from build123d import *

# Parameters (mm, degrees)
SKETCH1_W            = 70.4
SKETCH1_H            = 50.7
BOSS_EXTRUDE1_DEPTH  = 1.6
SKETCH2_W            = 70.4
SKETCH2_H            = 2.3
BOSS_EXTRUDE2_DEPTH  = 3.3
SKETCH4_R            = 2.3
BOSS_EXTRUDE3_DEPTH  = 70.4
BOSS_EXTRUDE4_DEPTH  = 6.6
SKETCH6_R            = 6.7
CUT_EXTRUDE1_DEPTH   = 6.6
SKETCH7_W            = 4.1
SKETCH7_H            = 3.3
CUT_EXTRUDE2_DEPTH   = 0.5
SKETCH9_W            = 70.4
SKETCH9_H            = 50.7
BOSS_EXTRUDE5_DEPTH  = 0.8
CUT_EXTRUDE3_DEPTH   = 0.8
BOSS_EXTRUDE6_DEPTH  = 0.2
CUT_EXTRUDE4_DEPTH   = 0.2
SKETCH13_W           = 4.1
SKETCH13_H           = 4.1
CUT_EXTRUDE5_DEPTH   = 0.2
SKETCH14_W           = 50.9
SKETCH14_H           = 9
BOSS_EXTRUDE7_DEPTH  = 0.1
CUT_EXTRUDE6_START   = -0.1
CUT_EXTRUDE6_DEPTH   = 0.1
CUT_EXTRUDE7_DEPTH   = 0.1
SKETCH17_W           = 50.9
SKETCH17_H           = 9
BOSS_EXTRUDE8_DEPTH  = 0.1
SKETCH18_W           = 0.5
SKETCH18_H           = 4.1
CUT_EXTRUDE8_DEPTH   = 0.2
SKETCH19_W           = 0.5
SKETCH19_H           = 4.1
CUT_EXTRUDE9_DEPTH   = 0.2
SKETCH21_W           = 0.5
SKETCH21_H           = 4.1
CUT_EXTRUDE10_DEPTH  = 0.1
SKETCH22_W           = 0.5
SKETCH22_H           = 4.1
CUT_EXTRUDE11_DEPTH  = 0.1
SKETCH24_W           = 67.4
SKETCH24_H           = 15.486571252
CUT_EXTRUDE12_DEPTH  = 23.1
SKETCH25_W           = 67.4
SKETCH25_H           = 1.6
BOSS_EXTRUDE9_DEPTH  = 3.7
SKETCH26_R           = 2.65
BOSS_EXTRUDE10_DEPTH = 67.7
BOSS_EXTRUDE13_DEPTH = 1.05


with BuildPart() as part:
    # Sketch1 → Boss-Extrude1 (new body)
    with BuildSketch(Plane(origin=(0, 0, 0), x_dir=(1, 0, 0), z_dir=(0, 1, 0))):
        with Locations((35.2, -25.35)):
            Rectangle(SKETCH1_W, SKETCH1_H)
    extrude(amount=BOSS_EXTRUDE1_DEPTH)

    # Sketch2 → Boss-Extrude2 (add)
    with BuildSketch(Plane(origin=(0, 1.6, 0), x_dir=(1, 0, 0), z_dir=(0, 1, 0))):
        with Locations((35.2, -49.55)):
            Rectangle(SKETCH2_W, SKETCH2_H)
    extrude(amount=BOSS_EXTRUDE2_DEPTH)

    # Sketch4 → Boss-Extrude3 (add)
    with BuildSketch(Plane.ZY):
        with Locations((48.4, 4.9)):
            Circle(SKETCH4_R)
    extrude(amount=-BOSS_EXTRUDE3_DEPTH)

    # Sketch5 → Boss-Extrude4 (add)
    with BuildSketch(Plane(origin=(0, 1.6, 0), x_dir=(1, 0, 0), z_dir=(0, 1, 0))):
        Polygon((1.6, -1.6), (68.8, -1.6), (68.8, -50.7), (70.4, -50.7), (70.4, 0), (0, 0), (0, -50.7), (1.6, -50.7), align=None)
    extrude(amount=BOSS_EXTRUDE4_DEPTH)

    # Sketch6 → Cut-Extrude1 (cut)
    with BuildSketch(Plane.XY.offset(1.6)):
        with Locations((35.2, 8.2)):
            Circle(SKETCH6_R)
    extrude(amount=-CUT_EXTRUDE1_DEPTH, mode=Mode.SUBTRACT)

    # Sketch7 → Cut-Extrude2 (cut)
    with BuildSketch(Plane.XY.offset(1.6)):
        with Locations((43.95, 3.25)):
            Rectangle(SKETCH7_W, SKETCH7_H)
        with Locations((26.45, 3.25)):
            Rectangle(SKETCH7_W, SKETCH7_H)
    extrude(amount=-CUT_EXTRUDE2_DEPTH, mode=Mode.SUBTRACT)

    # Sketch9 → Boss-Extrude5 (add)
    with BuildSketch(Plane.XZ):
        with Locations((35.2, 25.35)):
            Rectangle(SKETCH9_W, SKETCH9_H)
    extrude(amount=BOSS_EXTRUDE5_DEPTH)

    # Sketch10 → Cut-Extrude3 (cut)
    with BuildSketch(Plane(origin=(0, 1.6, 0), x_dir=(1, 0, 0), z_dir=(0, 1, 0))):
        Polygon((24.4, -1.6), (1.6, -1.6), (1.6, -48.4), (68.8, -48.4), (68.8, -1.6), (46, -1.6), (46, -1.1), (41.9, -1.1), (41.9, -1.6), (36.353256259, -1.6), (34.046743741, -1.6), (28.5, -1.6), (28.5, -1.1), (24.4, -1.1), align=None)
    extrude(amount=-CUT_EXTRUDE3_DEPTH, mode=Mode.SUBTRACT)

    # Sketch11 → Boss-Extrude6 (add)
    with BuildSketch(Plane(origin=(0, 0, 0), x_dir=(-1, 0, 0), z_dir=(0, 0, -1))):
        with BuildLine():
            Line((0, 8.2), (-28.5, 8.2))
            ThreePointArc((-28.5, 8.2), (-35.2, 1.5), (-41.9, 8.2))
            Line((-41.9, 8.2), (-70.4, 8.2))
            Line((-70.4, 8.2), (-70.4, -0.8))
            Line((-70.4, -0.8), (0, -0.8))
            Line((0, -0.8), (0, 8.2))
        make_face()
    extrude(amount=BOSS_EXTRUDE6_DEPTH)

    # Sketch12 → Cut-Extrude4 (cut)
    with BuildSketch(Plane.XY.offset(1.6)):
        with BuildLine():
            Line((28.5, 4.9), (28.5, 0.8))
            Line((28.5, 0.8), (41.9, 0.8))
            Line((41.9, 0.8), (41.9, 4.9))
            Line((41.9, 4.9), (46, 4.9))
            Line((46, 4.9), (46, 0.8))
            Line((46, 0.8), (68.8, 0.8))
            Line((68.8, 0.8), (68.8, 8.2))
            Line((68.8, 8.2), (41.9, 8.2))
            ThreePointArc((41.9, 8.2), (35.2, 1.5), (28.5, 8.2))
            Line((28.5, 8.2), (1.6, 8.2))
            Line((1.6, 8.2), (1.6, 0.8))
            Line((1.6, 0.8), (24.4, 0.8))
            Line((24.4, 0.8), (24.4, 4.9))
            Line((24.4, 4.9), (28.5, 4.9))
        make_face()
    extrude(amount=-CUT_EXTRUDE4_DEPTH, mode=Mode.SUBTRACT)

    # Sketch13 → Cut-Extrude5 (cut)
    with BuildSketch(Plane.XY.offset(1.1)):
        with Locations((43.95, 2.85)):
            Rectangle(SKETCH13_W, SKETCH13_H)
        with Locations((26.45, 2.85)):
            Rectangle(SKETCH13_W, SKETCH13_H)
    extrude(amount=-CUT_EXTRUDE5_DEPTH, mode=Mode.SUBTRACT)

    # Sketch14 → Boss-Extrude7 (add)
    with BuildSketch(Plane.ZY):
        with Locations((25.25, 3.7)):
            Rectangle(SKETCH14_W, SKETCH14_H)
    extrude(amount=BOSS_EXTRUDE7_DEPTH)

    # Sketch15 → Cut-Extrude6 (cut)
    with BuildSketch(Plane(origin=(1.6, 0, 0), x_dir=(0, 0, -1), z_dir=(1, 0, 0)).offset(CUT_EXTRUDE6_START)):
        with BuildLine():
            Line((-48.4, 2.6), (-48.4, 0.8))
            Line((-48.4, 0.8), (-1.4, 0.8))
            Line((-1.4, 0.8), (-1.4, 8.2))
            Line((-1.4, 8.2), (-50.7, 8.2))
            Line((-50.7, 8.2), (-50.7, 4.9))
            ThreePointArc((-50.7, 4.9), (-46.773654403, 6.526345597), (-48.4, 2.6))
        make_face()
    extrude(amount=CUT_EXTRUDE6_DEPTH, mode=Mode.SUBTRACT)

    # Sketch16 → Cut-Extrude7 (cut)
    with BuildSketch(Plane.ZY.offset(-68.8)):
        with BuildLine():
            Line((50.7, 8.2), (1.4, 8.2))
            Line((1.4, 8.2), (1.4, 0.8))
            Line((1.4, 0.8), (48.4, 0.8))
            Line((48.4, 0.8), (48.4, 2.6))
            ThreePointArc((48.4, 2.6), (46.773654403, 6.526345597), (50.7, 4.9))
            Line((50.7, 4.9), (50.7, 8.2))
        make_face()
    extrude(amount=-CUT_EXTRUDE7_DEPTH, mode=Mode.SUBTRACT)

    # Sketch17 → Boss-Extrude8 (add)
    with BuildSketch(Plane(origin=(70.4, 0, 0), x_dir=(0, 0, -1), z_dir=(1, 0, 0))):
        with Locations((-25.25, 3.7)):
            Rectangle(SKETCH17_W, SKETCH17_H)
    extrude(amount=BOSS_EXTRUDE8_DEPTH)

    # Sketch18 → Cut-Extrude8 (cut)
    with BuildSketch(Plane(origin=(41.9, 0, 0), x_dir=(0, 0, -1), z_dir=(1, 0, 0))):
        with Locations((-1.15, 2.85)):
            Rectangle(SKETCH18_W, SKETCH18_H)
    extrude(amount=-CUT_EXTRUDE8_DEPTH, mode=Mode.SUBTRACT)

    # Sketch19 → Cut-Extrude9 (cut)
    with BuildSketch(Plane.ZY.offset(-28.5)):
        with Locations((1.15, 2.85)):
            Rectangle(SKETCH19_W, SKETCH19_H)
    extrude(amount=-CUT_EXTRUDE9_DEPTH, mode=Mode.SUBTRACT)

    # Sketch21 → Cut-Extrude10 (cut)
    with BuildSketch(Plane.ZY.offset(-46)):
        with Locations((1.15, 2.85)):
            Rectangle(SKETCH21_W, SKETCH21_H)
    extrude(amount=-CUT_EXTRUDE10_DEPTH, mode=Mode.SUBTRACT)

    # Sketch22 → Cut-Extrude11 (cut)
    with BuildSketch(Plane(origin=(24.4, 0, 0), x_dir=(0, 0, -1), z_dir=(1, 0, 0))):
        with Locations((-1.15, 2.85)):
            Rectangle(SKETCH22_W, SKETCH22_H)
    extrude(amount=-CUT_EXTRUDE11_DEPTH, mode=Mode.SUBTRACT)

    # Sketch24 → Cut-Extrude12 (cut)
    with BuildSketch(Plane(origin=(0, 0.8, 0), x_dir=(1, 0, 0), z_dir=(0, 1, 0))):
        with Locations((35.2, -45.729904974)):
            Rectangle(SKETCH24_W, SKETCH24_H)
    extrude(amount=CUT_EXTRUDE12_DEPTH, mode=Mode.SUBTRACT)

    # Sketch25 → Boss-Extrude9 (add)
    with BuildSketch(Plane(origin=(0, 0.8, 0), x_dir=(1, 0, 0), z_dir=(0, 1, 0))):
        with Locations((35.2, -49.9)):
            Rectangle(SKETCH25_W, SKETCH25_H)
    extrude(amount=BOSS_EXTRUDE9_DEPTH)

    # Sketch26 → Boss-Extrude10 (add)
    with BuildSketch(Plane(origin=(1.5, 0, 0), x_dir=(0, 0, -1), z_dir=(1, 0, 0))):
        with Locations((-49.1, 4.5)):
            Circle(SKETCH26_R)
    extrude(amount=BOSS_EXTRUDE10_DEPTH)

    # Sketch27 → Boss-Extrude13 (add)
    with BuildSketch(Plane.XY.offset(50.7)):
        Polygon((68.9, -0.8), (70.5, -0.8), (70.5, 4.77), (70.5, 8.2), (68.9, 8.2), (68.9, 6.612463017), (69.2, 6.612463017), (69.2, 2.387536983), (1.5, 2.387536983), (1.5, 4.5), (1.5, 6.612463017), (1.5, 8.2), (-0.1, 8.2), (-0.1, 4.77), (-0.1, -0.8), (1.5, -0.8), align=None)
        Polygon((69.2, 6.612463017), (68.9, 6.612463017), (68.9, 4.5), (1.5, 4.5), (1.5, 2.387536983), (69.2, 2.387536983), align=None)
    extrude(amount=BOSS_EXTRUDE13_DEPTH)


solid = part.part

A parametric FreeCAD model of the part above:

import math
import FreeCAD as App
import Part
import Sketcher


def add_polygon(sketch, points):
    """Adds a closed chain of lines whose ends are joined by coincident constraints."""
    first, n = sketch.GeometryCount, len(points)
    for a, b in zip(points, points[1:] + points[:1]):
        sketch.addGeometry(Part.LineSegment(App.Vector(*a, 0), App.Vector(*b, 0)), False)
    for i in range(n):
        sketch.addConstraint(Sketcher.Constraint("Coincident", first + i, 2, first + (i + 1) % n, 1))

doc = App.newDocument("Part")
body = doc.addObject("PartDesign::Body", "Body")

# Sketch on XZ plane
sketch1 = doc.addObject("Sketcher::SketchObject", "Sketch")
body.addObject(sketch1)
sketch1.AttachmentSupport = (doc.XZ_Plane, [""])
sketch1.MapMode = "FlatFace"
add_polygon(sketch1, [(0, 0), (0, 51), (70, 51), (70, 0)])  # lines 0-3
sketch1.addConstraint([
    Sketcher.Constraint("Vertical", 0),
    Sketcher.Constraint("Horizontal", 1),
    Sketcher.Constraint("Vertical", 2),
    Sketcher.Constraint("Horizontal", 3),
    Sketcher.Constraint("Coincident", 3, 2, -1, 1),
    Sketcher.Constraint("DistanceX", 1, 1, 1, 2, 70.4),
    Sketcher.Constraint("DistanceY", 0, 1, 0, 2, 50.7),
])
pad1 = doc.addObject("PartDesign::Pad", "Pad")
body.addObject(pad1)
pad1.Profile = sketch1
pad1.Length = 1.6
pad1.Reversed = True

# Sketch on XZ plane
sketch2 = doc.addObject("Sketcher::SketchObject", "Sketch001")
body.addObject(sketch2)
sketch2.AttachmentSupport = (doc.XZ_Plane, [""])
sketch2.MapMode = "FlatFace"
sketch2.AttachmentOffset = App.Placement(App.Vector(0, 0, -1.6), App.Rotation())
add_polygon(sketch2, [(0, 48.4), (0, 50.7), (70.4, 50.7), (70.4, 48.4)])  # lines 0-3
sketch2.addConstraint([
    Sketcher.Constraint("Vertical", 0),
    Sketcher.Constraint("Horizontal", 1),
    Sketcher.Constraint("Vertical", 2),
    Sketcher.Constraint("Horizontal", 3),
    Sketcher.Constraint("PointOnObject", 0, 2, -2),
    Sketcher.Constraint("DistanceX", 1, 1, 1, 2, 70.4),
    Sketcher.Constraint("DistanceY", 0, 1, 0, 2, 2.3),
    Sketcher.Constraint("DistanceY", -1, 1, 0, 2, 50.7),
])
pad2 = doc.addObject("PartDesign::Pad", "Pad001")
body.addObject(pad2)
pad2.Profile = sketch2
pad2.Length = 3.3
pad2.Reversed = True

# Sketch on YZ plane
sketch3 = doc.addObject("Sketcher::SketchObject", "Sketch002")
body.addObject(sketch3)
sketch3.AttachmentSupport = (doc.YZ_Plane, [""])
sketch3.MapMode = "FlatFace"
sketch3.addGeometry(Part.Circle(App.Vector(4.9, 48.4, 0), App.Vector(0, 0, 1), 2.3), False)
sketch3.addConstraint([
    Sketcher.Constraint("Diameter", 0, 4.6),
    Sketcher.Constraint("DistanceX", -1, 1, 0, 3, 4.9),
    Sketcher.Constraint("DistanceY", -1, 1, 0, 3, 48.4),
])
pad3 = doc.addObject("PartDesign::Pad", "Pad002")
body.addObject(pad3)
pad3.Profile = sketch3
pad3.Length = 70.4

# Sketch on XZ plane
sketch4 = doc.addObject("Sketcher::SketchObject", "Sketch003")
body.addObject(sketch4)
sketch4.AttachmentSupport = (doc.XZ_Plane, [""])
sketch4.MapMode = "FlatFace"
sketch4.AttachmentOffset = App.Placement(App.Vector(0, 0, -1.6), App.Rotation())
add_polygon(sketch4, [(1.6, 1.6), (68.8, 1.6), (68.8, 50.7), (70.4, 50.7), (70.4, 0), (0, 0), (0, 50.7), (1.6, 50.7)])  # lines 0-7
sketch4.addConstraint([
    Sketcher.Constraint("Horizontal", 0),
    Sketcher.Constraint("Vertical", 1),
    Sketcher.Constraint("Horizontal", 2),
    Sketcher.Constraint("Vertical", 3),
    Sketcher.Constraint("Horizontal", 4),
    Sketcher.Constraint("Vertical", 5),
    Sketcher.Constraint("Horizontal", 6),
    Sketcher.Constraint("Vertical", 7),
    Sketcher.Constraint("Coincident", 4, 2, -1, 1),
    Sketcher.Constraint("Horizontal", 2, 2, 5, 2),
    Sketcher.Constraint("Equal", 2, 6),
    Sketcher.Constraint("DistanceX", 0, 1, 0, 2, 67.2),
    Sketcher.Constraint("DistanceX", 2, 1, 2, 2, 1.6),
    Sketcher.Constraint("DistanceY", 1, 1, 1, 2, 49.1),
    Sketcher.Constraint("DistanceY", 3, 2, 3, 1, 50.7),
])
pad4 = doc.addObject("PartDesign::Pad", "Pad003")
body.addObject(pad4)
pad4.Profile = sketch4
pad4.Length = 6.6
pad4.Reversed = True

# Sketch on XY plane
sketch5 = doc.addObject("Sketcher::SketchObject", "Sketch004")
body.addObject(sketch5)
sketch5.AttachmentSupport = (doc.XY_Plane, [""])
sketch5.MapMode = "FlatFace"
sketch5.AttachmentOffset = App.Placement(App.Vector(0, 0, 1.6), App.Rotation())
sketch5.addGeometry(Part.Circle(App.Vector(35, 8, 0), App.Vector(0, 0, 1), 7), False)
sketch5.addConstraint([
    Sketcher.Constraint("Diameter", 0, 13.4),
    Sketcher.Constraint("DistanceX", -1, 1, 0, 3, 35.2),
    Sketcher.Constraint("DistanceY", -1, 1, 0, 3, 8.2),
])
pocket1 = doc.addObject("PartDesign::Pocket", "Pocket")
body.addObject(pocket1)
pocket1.Profile = sketch5
pocket1.Length = 6.6

# Sketch on XY plane
sketch6 = doc.addObject("Sketcher::SketchObject", "Sketch005")
body.addObject(sketch6)
sketch6.AttachmentSupport = (doc.XY_Plane, [""])
sketch6.MapMode = "FlatFace"
sketch6.AttachmentOffset = App.Placement(App.Vector(0, 0, 1.6), App.Rotation())
add_polygon(sketch6, [(41.9, 4.9), (41.9, 1.6), (46, 1.6), (46, 4.9)])  # lines 0-3
add_polygon(sketch6, [(24.4, 4.9), (24.4, 1.6), (28.5, 1.6), (28.5, 4.9)])  # lines 4-7
sketch6.addConstraint([
    Sketcher.Constraint("Vertical", 0),
    Sketcher.Constraint("Horizontal", 1),
    Sketcher.Constraint("Vertical", 2),
    Sketcher.Constraint("Horizontal", 3),
    Sketcher.Constraint("Vertical", 4),
    Sketcher.Constraint("Horizontal", 5),
    Sketcher.Constraint("Vertical", 6),
    Sketcher.Constraint("Horizontal", 7),
    Sketcher.Constraint("Horizontal", 1, 2, 4, 2),
    Sketcher.Constraint("Horizontal", 3, 2, 6, 2),
    Sketcher.Constraint("Equal", 3, 5),
    Sketcher.Constraint("DistanceX", 1, 1, 1, 2, 4.1),
    Sketcher.Constraint("DistanceY", 0, 2, 0, 1, 3.3),
    Sketcher.Constraint("DistanceX", -1, 1, 1, 2, 46.0),
    Sketcher.Constraint("DistanceY", -1, 1, 0, 2, 1.6),
    Sketcher.Constraint("DistanceX", -1, 1, 4, 2, 24.4),
])
pocket2 = doc.addObject("PartDesign::Pocket", "Pocket001")
body.addObject(pocket2)
pocket2.Profile = sketch6
pocket2.Length = 0.5

# Sketch on XZ plane
sketch7 = doc.addObject("Sketcher::SketchObject", "Sketch006")
body.addObject(sketch7)
sketch7.AttachmentSupport = (doc.XZ_Plane, [""])
sketch7.MapMode = "FlatFace"
add_polygon(sketch7, [(0, 51), (0, 0), (70, 0), (70, 51)])  # lines 0-3
sketch7.addConstraint([
    Sketcher.Constraint("Vertical", 0),
    Sketcher.Constraint("Horizontal", 1),
    Sketcher.Constraint("Vertical", 2),
    Sketcher.Constraint("Horizontal", 3),
    Sketcher.Constraint("Coincident", 0, 2, -1, 1),
    Sketcher.Constraint("DistanceX", 1, 1, 1, 2, 70.4),
    Sketcher.Constraint("DistanceY", 0, 2, 0, 1, 50.7),
])
pad5 = doc.addObject("PartDesign::Pad", "Pad004")
body.addObject(pad5)
pad5.Profile = sketch7
pad5.Length = 0.8

# Sketch on XZ plane
sketch8 = doc.addObject("Sketcher::SketchObject", "Sketch007")
body.addObject(sketch8)
sketch8.AttachmentSupport = (doc.XZ_Plane, [""])
sketch8.MapMode = "FlatFace"
sketch8.AttachmentOffset = App.Placement(App.Vector(0, 0, -1.6), App.Rotation())
add_polygon(sketch8, [(24.4, 1.6), (1.6, 1.6), (1.6, 48.4), (68.8, 48.4), (68.8, 1.6), (46, 1.6), (46, 1.1), (41.9, 1.1), (41.9, 1.6), (28.5, 1.6), (28.5, 1.1), (24.4, 1.1)])  # lines 0-11
sketch8.addConstraint([
    Sketcher.Constraint("Horizontal", 0),
    Sketcher.Constraint("Vertical", 1),
    Sketcher.Constraint("Horizontal", 2),
    Sketcher.Constraint("Vertical", 3),
    Sketcher.Constraint("Horizontal", 4),
    Sketcher.Constraint("Vertical", 5),
    Sketcher.Constraint("Horizontal", 6),
    Sketcher.Constraint("Vertical", 7),
    Sketcher.Constraint("Horizontal", 8),
    Sketcher.Constraint("Vertical", 9),
    Sketcher.Constraint("Horizontal", 10),
    Sketcher.Constraint("Vertical", 11),
    Sketcher.Constraint("Horizontal", 0, 2, 3, 2),
    Sketcher.Constraint("Horizontal", 4, 2, 7, 2),
    Sketcher.Constraint("Horizontal", 6, 2, 9, 2),
    Sketcher.Constraint("Equal", 0, 4),
    Sketcher.Constraint("Equal", 6, 10),
    Sketcher.Constraint("DistanceX", 0, 2, 0, 1, 22.8),
    Sketcher.Constraint("DistanceX", 2, 1, 2, 2, 67.2),
    Sketcher.Constraint("DistanceX", 6, 2, 6, 1, 4.1),
    Sketcher.Constraint("DistanceY", 1, 1, 1, 2, 46.8),
    Sketcher.Constraint("DistanceY", 5, 2, 5, 1, 0.5),
    Sketcher.Constraint("DistanceX", -1, 1, 4, 2, 46.0),
    Sketcher.Constraint("DistanceY", -1, 1, 0, 2, 1.6),
])
pocket3 = doc.addObject("PartDesign::Pocket", "Pocket002")
body.addObject(pocket3)
pocket3.Profile = sketch8
pocket3.Length = 0.8
pocket3.Reversed = True

# Sketch on XY plane
sketch9 = doc.addObject("Sketcher::SketchObject", "Sketch008")
body.addObject(sketch9)
sketch9.AttachmentSupport = (doc.XY_Plane, [""])
sketch9.MapMode = "FlatFace"
sketch9.addGeometry([
    Part.LineSegment(App.Vector(0, 8, 0), App.Vector(28, 8, 0)),  # 0
    Part.ArcOfCircle(Part.Circle(App.Vector(35, 8, 0), App.Vector(0, 0, 1), 7), math.radians(180), math.radians(360)),  # 1
    Part.LineSegment(App.Vector(42, 8, 0), App.Vector(70, 8, 0)),  # 2
    Part.LineSegment(App.Vector(70, 8, 0), App.Vector(70, -1, 0)),  # 3
    Part.LineSegment(App.Vector(70, -1, 0), App.Vector(0, -1, 0)),  # 4
    Part.LineSegment(App.Vector(0, -1, 0), App.Vector(0, 8, 0)),  # 5
], False)
sketch9.addConstraint([
    Sketcher.Constraint("Coincident", 0, 2, 1, 1),
    Sketcher.Constraint("Coincident", 1, 2, 2, 1),
    Sketcher.Constraint("Coincident", 2, 2, 3, 1),
    Sketcher.Constraint("Coincident", 3, 2, 4, 1),
    Sketcher.Constraint("Coincident", 4, 2, 5, 1),
    Sketcher.Constraint("Coincident", 5, 2, 0, 1),
    Sketcher.Constraint("Horizontal", 0),
    Sketcher.Constraint("Horizontal", 2),
    Sketcher.Constraint("Vertical", 3),
    Sketcher.Constraint("Horizontal", 4),
    Sketcher.Constraint("Vertical", 5),
    Sketcher.Constraint("PointOnObject", 4, 2, -2),
    Sketcher.Constraint("Horizontal", 1, 3, 0, 2),
    Sketcher.Constraint("Horizontal", 0, 2, 1, 2),
    Sketcher.Constraint("Equal", 0, 2),
    Sketcher.Constraint("Radius", 1, 6.7),
    Sketcher.Constraint("DistanceY", 3, 2, 3, 1, 9.0),
    Sketcher.Constraint("DistanceX", 0, 1, 0, 2, 28.5),
    Sketcher.Constraint("DistanceY", -1, 1, 1, 3, 8.2),
])
pad6 = doc.addObject("PartDesign::Pad", "Pad005")
body.addObject(pad6)
pad6.Profile = sketch9
pad6.Length = 0.2
pad6.Reversed = True

# Sketch on XY plane
sketch10 = doc.addObject("Sketcher::SketchObject", "Sketch009")
body.addObject(sketch10)
sketch10.AttachmentSupport = (doc.XY_Plane, [""])
sketch10.MapMode = "FlatFace"
sketch10.AttachmentOffset = App.Placement(App.Vector(0, 0, 1.6), App.Rotation())
sketch10.addGeometry([
    Part.LineSegment(App.Vector(28.5, 4.9, 0), App.Vector(28.5, 0.8, 0)),  # 0
    Part.LineSegment(App.Vector(28.5, 0.8, 0), App.Vector(41.9, 0.8, 0)),  # 1
    Part.LineSegment(App.Vector(41.9, 0.8, 0), App.Vector(41.9, 4.9, 0)),  # 2
    Part.LineSegment(App.Vector(41.9, 4.9, 0), App.Vector(46, 4.9, 0)),  # 3
    Part.LineSegment(App.Vector(46, 4.9, 0), App.Vector(46, 0.8, 0)),  # 4
    Part.LineSegment(App.Vector(46, 0.8, 0), App.Vector(68.8, 0.8, 0)),  # 5
    Part.LineSegment(App.Vector(68.8, 0.8, 0), App.Vector(68.8, 8.2, 0)),  # 6
    Part.LineSegment(App.Vector(68.8, 8.2, 0), App.Vector(41.9, 8.2, 0)),  # 7
    Part.ArcOfCircle(Part.Circle(App.Vector(35.2, 8.2, 0), App.Vector(0, 0, 1), 6.7), math.radians(180), math.radians(360)),  # 8
    Part.LineSegment(App.Vector(28.5, 8.2, 0), App.Vector(1.6, 8.2, 0)),  # 9
    Part.LineSegment(App.Vector(1.6, 8.2, 0), App.Vector(1.6, 0.8, 0)),  # 10
    Part.LineSegment(App.Vector(1.6, 0.8, 0), App.Vector(24.4, 0.8, 0)),  # 11
    Part.LineSegment(App.Vector(24.4, 0.8, 0), App.Vector(24.4, 4.9, 0)),  # 12
    Part.LineSegment(App.Vector(24.4, 4.9, 0), App.Vector(28.5, 4.9, 0)),  # 13
], False)
sketch10.addConstraint([
    Sketcher.Constraint("Coincident", 0, 2, 1, 1),
    Sketcher.Constraint("Coincident", 1, 2, 2, 1),
    Sketcher.Constraint("Coincident", 2, 2, 3, 1),
    Sketcher.Constraint("Coincident", 3, 2, 4, 1),
    Sketcher.Constraint("Coincident", 4, 2, 5, 1),
    Sketcher.Constraint("Coincident", 5, 2, 6, 1),
    Sketcher.Constraint("Coincident", 6, 2, 7, 1),
    Sketcher.Constraint("Coincident", 7, 2, 8, 2),
    Sketcher.Constraint("Coincident", 8, 1, 9, 1),
    Sketcher.Constraint("Coincident", 9, 2, 10, 1),
    Sketcher.Constraint("Coincident", 10, 2, 11, 1),
    Sketcher.Constraint("Coincident", 11, 2, 12, 1),
    Sketcher.Constraint("Coincident", 12, 2, 13, 1),
    Sketcher.Constraint("Coincident", 13, 2, 0, 1),
    Sketcher.Constraint("Vertical", 0),
    Sketcher.Constraint("Horizontal", 1),
    Sketcher.Constraint("Vertical", 2),
    Sketcher.Constraint("Horizontal", 3),
    Sketcher.Constraint("Vertical", 4),
    Sketcher.Constraint("Horizontal", 5),
    Sketcher.Constraint("Vertical", 6),
    Sketcher.Constraint("Horizontal", 7),
    Sketcher.Constraint("Horizontal", 9),
    Sketcher.Constraint("Vertical", 10),
    Sketcher.Constraint("Horizontal", 11),
    Sketcher.Constraint("Vertical", 12),
    Sketcher.Constraint("Horizontal", 13),
    Sketcher.Constraint("Horizontal", 1, 2, 4, 2),
    Sketcher.Constraint("Horizontal", 8, 3, 6, 2),
    Sketcher.Constraint("Horizontal", 7, 2, 8, 1),
    Sketcher.Constraint("Horizontal", 5, 2, 10, 2),
    Sketcher.Constraint("Horizontal", 3, 2, 12, 2),
    Sketcher.Constraint("Vertical", 2, 2, 7, 2),
    Sketcher.Constraint("Vertical", 0, 2, 8, 1),
    Sketcher.Constraint("Equal", 7, 9),
    Sketcher.Constraint("Equal", 5, 11),
    Sketcher.Constraint("Equal", 13, 0),
    Sketcher.Constraint("Radius", 8, 6.7),
    Sketcher.Constraint("DistanceX", 3, 1, 3, 2, 4.1),
    Sketcher.Constraint("DistanceX", 5, 1, 5, 2, 22.8),
    Sketcher.Constraint("DistanceY", 6, 1, 6, 2, 7.4),
    Sketcher.Constraint("DistanceX", -1, 1, 3, 2, 46.0),
    Sketcher.Constraint("DistanceY", -1, 1, 8, 3, 8.2),
])
pocket4 = doc.addObject("PartDesign::Pocket", "Pocket003")
body.addObject(pocket4)
pocket4.Profile = sketch10
pocket4.Length = 0.2

# Sketch on XY plane
sketch11 = doc.addObject("Sketcher::SketchObject", "Sketch010")
body.addObject(sketch11)
sketch11.AttachmentSupport = (doc.XY_Plane, [""])
sketch11.MapMode = "FlatFace"
sketch11.AttachmentOffset = App.Placement(App.Vector(0, 0, 1.1), App.Rotation())
add_polygon(sketch11, [(41.9, 4.9), (41.9, 0.8), (46, 0.8), (46, 4.9)])  # lines 0-3
add_polygon(sketch11, [(24.4, 4.9), (24.4, 0.8), (28.5, 0.8), (28.5, 4.9)])  # lines 4-7
sketch11.addConstraint([
    Sketcher.Constraint("Vertical", 0),
    Sketcher.Constraint("Horizontal", 1),
    Sketcher.Constraint("Vertical", 2),
    Sketcher.Constraint("Horizontal", 3),
    Sketcher.Constraint("Vertical", 4),
    Sketcher.Constraint("Horizontal", 5),
    Sketcher.Constraint("Vertical", 6),
    Sketcher.Constraint("Horizontal", 7),
    Sketcher.Constraint("Horizontal", 1, 2, 4, 2),
    Sketcher.Constraint("Horizontal", 3, 2, 6, 2),
    Sketcher.Constraint("Equal", 3, 5),
    Sketcher.Constraint("Equal", 7, 0),
    Sketcher.Constraint("DistanceX", 1, 1, 1, 2, 4.1),
    Sketcher.Constraint("DistanceX", -1, 1, 1, 2, 46.0),
    Sketcher.Constraint("DistanceY", -1, 1, 0, 2, 0.8),
    Sketcher.Constraint("DistanceX", -1, 1, 4, 2, 24.4),
])
pocket5 = doc.addObject("PartDesign::Pocket", "Pocket004")
body.addObject(pocket5)
pocket5.Profile = sketch11
pocket5.Length = 0.2

# Sketch on YZ plane
sketch12 = doc.addObject("Sketcher::SketchObject", "Sketch011")
body.addObject(sketch12)
sketch12.AttachmentSupport = (doc.YZ_Plane, [""])
sketch12.MapMode = "FlatFace"
add_polygon(sketch12, [(8, 0), (-1, 0), (-1, 51), (8, 51)])  # lines 0-3
sketch12.addConstraint([
    Sketcher.Constraint("Horizontal", 0),
    Sketcher.Constraint("Vertical", 1),
    Sketcher.Constraint("Horizontal", 2),
    Sketcher.Constraint("Vertical", 3),
    Sketcher.Constraint("DistanceX", 0, 2, 0, 1, 9.0),
    Sketcher.Constraint("DistanceY", 1, 1, 1, 2, 50.9),
    Sketcher.Constraint("DistanceX", 0, 2, -1, 1, 0.8),
    Sketcher.Constraint("DistanceY", 0, 2, -1, 1, 0.2),
])
pad7 = doc.addObject("PartDesign::Pad", "Pad006")
body.addObject(pad7)
pad7.Profile = sketch12
pad7.Length = 0.1
pad7.Reversed = True

# Sketch on YZ plane
sketch13 = doc.addObject("Sketcher::SketchObject", "Sketch012")
body.addObject(sketch13)
sketch13.AttachmentSupport = (doc.YZ_Plane, [""])
sketch13.MapMode = "FlatFace"
sketch13.AttachmentOffset = App.Placement(App.Vector(0, 0, 1.5), App.Rotation())
sketch13.addGeometry([
    Part.LineSegment(App.Vector(2.6, 48.4, 0), App.Vector(0.8, 48.4, 0)),  # 0
    Part.LineSegment(App.Vector(0.8, 48.4, 0), App.Vector(0.8, 1.4, 0)),  # 1
    Part.LineSegment(App.Vector(0.8, 1.4, 0), App.Vector(8.2, 1.4, 0)),  # 2
    Part.LineSegment(App.Vector(8.2, 1.4, 0), App.Vector(8.2, 50.7, 0)),  # 3
    Part.LineSegment(App.Vector(8.2, 50.7, 0), App.Vector(4.9, 50.7, 0)),  # 4
    Part.ArcOfCircle(Part.Circle(App.Vector(4.9, 48.4, 0), App.Vector(0, 0, 1), 2.3), math.radians(180), math.radians(450)),  # 5
], False)
sketch13.addConstraint([
    Sketcher.Constraint("Coincident", 0, 2, 1, 1),
    Sketcher.Constraint("Coincident", 1, 2, 2, 1),
    Sketcher.Constraint("Coincident", 2, 2, 3, 1),
    Sketcher.Constraint("Coincident", 3, 2, 4, 1),
    Sketcher.Constraint("Tangent", 4, 2, 5, 2),
    Sketcher.Constraint("Coincident", 5, 1, 0, 1),
    Sketcher.Constraint("Horizontal", 0),
    Sketcher.Constraint("Vertical", 1),
    Sketcher.Constraint("Horizontal", 2),
    Sketcher.Constraint("Vertical", 3),
    Sketcher.Constraint("Horizontal", 4),
    Sketcher.Constraint("Horizontal", 5, 3, 0, 2),
    Sketcher.Constraint("Radius", 5, 2.3),
    Sketcher.Constraint("DistanceY", 1, 2, 1, 1, 47.0),
    Sketcher.Constraint("DistanceX", 0, 2, 0, 1, 1.8),
    Sketcher.Constraint("DistanceX", 2, 1, 2, 2, 7.4),
    Sketcher.Constraint("DistanceX", -1, 1, 5, 3, 4.9),
    Sketcher.Constraint("DistanceY", -1, 1, 5, 3, 48.4),
])
pocket6 = doc.addObject("PartDesign::Pocket", "Pocket005")
body.addObject(pocket6)
pocket6.Profile = sketch13
pocket6.Length = 0.1
pocket6.Reversed = True

# Sketch on YZ plane
sketch14 = doc.addObject("Sketcher::SketchObject", "Sketch013")
body.addObject(sketch14)
sketch14.AttachmentSupport = (doc.YZ_Plane, [""])
sketch14.MapMode = "FlatFace"
sketch14.AttachmentOffset = App.Placement(App.Vector(0, 0, 68.8), App.Rotation())
sketch14.addGeometry([
    Part.LineSegment(App.Vector(8.2, 50.7, 0), App.Vector(8.2, 1.4, 0)),  # 0
    Part.LineSegment(App.Vector(8.2, 1.4, 0), App.Vector(0.8, 1.4, 0)),  # 1
    Part.LineSegment(App.Vector(0.8, 1.4, 0), App.Vector(0.8, 48.4, 0)),  # 2
    Part.LineSegment(App.Vector(0.8, 48.4, 0), App.Vector(2.6, 48.4, 0)),  # 3
    Part.ArcOfCircle(Part.Circle(App.Vector(4.9, 48.4, 0), App.Vector(0, 0, 1), 2.3), math.radians(180), math.radians(450)),  # 4
    Part.LineSegment(App.Vector(4.9, 50.7, 0), App.Vector(8.2, 50.7, 0)),  # 5
], False)
sketch14.addConstraint([
    Sketcher.Constraint("Coincident", 0, 2, 1, 1),
    Sketcher.Constraint("Coincident", 1, 2, 2, 1),
    Sketcher.Constraint("Coincident", 2, 2, 3, 1),
    Sketcher.Constraint("Coincident", 3, 2, 4, 1),
    Sketcher.Constraint("Tangent", 4, 2, 5, 1),
    Sketcher.Constraint("Coincident", 5, 2, 0, 1),
    Sketcher.Constraint("Vertical", 0),
    Sketcher.Constraint("Horizontal", 1),
    Sketcher.Constraint("Vertical", 2),
    Sketcher.Constraint("Horizontal", 3),
    Sketcher.Constraint("Horizontal", 5),
    Sketcher.Constraint("Horizontal", 4, 3, 2, 2),
    Sketcher.Constraint("Radius", 4, 2.3),
    Sketcher.Constraint("DistanceY", 2, 1, 2, 2, 47.0),
    Sketcher.Constraint("DistanceX", 1, 2, 1, 1, 7.4),
    Sketcher.Constraint("DistanceX", 3, 1, 3, 2, 1.8),
    Sketcher.Constraint("DistanceX", -1, 1, 4, 3, 4.9),
    Sketcher.Constraint("DistanceY", -1, 1, 4, 3, 48.4),
])
pocket7 = doc.addObject("PartDesign::Pocket", "Pocket006")
body.addObject(pocket7)
pocket7.Profile = sketch14
pocket7.Length = 0.1
pocket7.Reversed = True

# Sketch on YZ plane
sketch15 = doc.addObject("Sketcher::SketchObject", "Sketch014")
body.addObject(sketch15)
sketch15.AttachmentSupport = (doc.YZ_Plane, [""])
sketch15.MapMode = "FlatFace"
sketch15.AttachmentOffset = App.Placement(App.Vector(0, 0, 70.4), App.Rotation())
add_polygon(sketch15, [(8, 51), (-1, 51), (-1, 0), (8, 0)])  # lines 0-3
sketch15.addConstraint([
    Sketcher.Constraint("Horizontal", 0),
    Sketcher.Constraint("Vertical", 1),
    Sketcher.Constraint("Horizontal", 2),
    Sketcher.Constraint("Vertical", 3),
    Sketcher.Constraint("DistanceX", 0, 2, 0, 1, 9.0),
    Sketcher.Constraint("DistanceY", 1, 2, 1, 1, 50.9),
    Sketcher.Constraint("DistanceX", 0, 2, -1, 1, 0.8),
    Sketcher.Constraint("DistanceY", -1, 1, 0, 2, 50.7),
])
pad8 = doc.addObject("PartDesign::Pad", "Pad007")
body.addObject(pad8)
pad8.Profile = sketch15
pad8.Length = 0.1

# Sketch on YZ plane
sketch16 = doc.addObject("Sketcher::SketchObject", "Sketch015")
body.addObject(sketch16)
sketch16.AttachmentSupport = (doc.YZ_Plane, [""])
sketch16.MapMode = "FlatFace"
sketch16.AttachmentOffset = App.Placement(App.Vector(0, 0, 41.9), App.Rotation())
add_polygon(sketch16, [(4.9, 1.4), (0.8, 1.4), (0.8, 0.9), (4.9, 0.9)])  # lines 0-3
sketch16.addConstraint([
    Sketcher.Constraint("Horizontal", 0),
    Sketcher.Constraint("Vertical", 1),
    Sketcher.Constraint("Horizontal", 2),
    Sketcher.Constraint("Vertical", 3),
    Sketcher.Constraint("DistanceX", 0, 2, 0, 1, 4.1),
    Sketcher.Constraint("DistanceY", 1, 2, 1, 1, 0.5),
    Sketcher.Constraint("DistanceX", -1, 1, 0, 2, 0.8),
    Sketcher.Constraint("DistanceY", -1, 1, 0, 2, 1.4),
])
pocket8 = doc.addObject("PartDesign::Pocket", "Pocket007")
body.addObject(pocket8)
pocket8.Profile = sketch16
pocket8.Length = 0.2

# Sketch on YZ plane
sketch17 = doc.addObject("Sketcher::SketchObject", "Sketch016")
body.addObject(sketch17)
sketch17.AttachmentSupport = (doc.YZ_Plane, [""])
sketch17.MapMode = "FlatFace"
sketch17.AttachmentOffset = App.Placement(App.Vector(0, 0, 28.5), App.Rotation())
add_polygon(sketch17, [(4.9, 0.9), (0.8, 0.9), (0.8, 1.4), (4.9, 1.4)])  # lines 0-3
sketch17.addConstraint([
    Sketcher.Constraint("Horizontal", 0),
    Sketcher.Constraint("Vertical", 1),
    Sketcher.Constraint("Horizontal", 2),
    Sketcher.Constraint("Vertical", 3),
    Sketcher.Constraint("DistanceX", 0, 2, 0, 1, 4.1),
    Sketcher.Constraint("DistanceY", 1, 1, 1, 2, 0.5),
    Sketcher.Constraint("DistanceX", -1, 1, 0, 2, 0.8),
    Sketcher.Constraint("DistanceY", -1, 1, 0, 2, 0.9),
])
pocket9 = doc.addObject("PartDesign::Pocket", "Pocket008")
body.addObject(pocket9)
pocket9.Profile = sketch17
pocket9.Length = 0.2
pocket9.Reversed = True

# Sketch on YZ plane
sketch18 = doc.addObject("Sketcher::SketchObject", "Sketch017")
body.addObject(sketch18)
sketch18.AttachmentSupport = (doc.YZ_Plane, [""])
sketch18.MapMode = "FlatFace"
sketch18.AttachmentOffset = App.Placement(App.Vector(0, 0, 46), App.Rotation())
add_polygon(sketch18, [(4.9, 0.9), (0.8, 0.9), (0.8, 1.4), (4.9, 1.4)])  # lines 0-3
sketch18.addConstraint([
    Sketcher.Constraint("Horizontal", 0),
    Sketcher.Constraint("Vertical", 1),
    Sketcher.Constraint("Horizontal", 2),
    Sketcher.Constraint("Vertical", 3),
    Sketcher.Constraint("DistanceX", 0, 2, 0, 1, 4.1),
    Sketcher.Constraint("DistanceY", 1, 1, 1, 2, 0.5),
    Sketcher.Constraint("DistanceX", -1, 1, 0, 2, 0.8),
    Sketcher.Constraint("DistanceY", -1, 1, 0, 2, 0.9),
])
pocket10 = doc.addObject("PartDesign::Pocket", "Pocket009")
body.addObject(pocket10)
pocket10.Profile = sketch18
pocket10.Length = 0.1
pocket10.Reversed = True

# Sketch on YZ plane
sketch19 = doc.addObject("Sketcher::SketchObject", "Sketch018")
body.addObject(sketch19)
sketch19.AttachmentSupport = (doc.YZ_Plane, [""])
sketch19.MapMode = "FlatFace"
sketch19.AttachmentOffset = App.Placement(App.Vector(0, 0, 24.4), App.Rotation())
add_polygon(sketch19, [(4.9, 1.4), (0.8, 1.4), (0.8, 0.9), (4.9, 0.9)])  # lines 0-3
sketch19.addConstraint([
    Sketcher.Constraint("Horizontal", 0),
    Sketcher.Constraint("Vertical", 1),
    Sketcher.Constraint("Horizontal", 2),
    Sketcher.Constraint("Vertical", 3),
    Sketcher.Constraint("DistanceX", 0, 2, 0, 1, 4.1),
    Sketcher.Constraint("DistanceY", 1, 2, 1, 1, 0.5),
    Sketcher.Constraint("DistanceX", -1, 1, 0, 2, 0.8),
    Sketcher.Constraint("DistanceY", -1, 1, 0, 2, 1.4),
])
pocket11 = doc.addObject("PartDesign::Pocket", "Pocket010")
body.addObject(pocket11)
pocket11.Profile = sketch19
pocket11.Length = 0.1

# Sketch on XZ plane
sketch20 = doc.addObject("Sketcher::SketchObject", "Sketch019")
body.addObject(sketch20)
sketch20.AttachmentSupport = (doc.XZ_Plane, [""])
sketch20.MapMode = "FlatFace"
sketch20.AttachmentOffset = App.Placement(App.Vector(0, 0, -0.8), App.Rotation())
add_polygon(sketch20, [(2, 38), (2, 53), (69, 53), (69, 38)])  # lines 0-3
sketch20.addConstraint([
    Sketcher.Constraint("Vertical", 0),
    Sketcher.Constraint("Horizontal", 1),
    Sketcher.Constraint("Vertical", 2),
    Sketcher.Constraint("Horizontal", 3),
    Sketcher.Constraint("DistanceX", 1, 1, 1, 2, 67.4),
    Sketcher.Constraint("DistanceX", -1, 1, 0, 2, 1.5),
    Sketcher.Constraint("DistanceY", 0, 1, 0, 2, 15.486571),
    Sketcher.Constraint("DistanceY", -1, 1, 0, 2, 53.473191),
])
pocket12 = doc.addObject("PartDesign::Pocket", "Pocket011")
body.addObject(pocket12)
pocket12.Profile = sketch20
pocket12.Length = 23.1

# Sketch on XZ plane
sketch21 = doc.addObject("Sketcher::SketchObject", "Sketch020")
body.addObject(sketch21)
sketch21.AttachmentSupport = (doc.XZ_Plane, [""])
sketch21.MapMode = "FlatFace"
sketch21.AttachmentOffset = App.Placement(App.Vector(0, 0, -0.8), App.Rotation())
add_polygon(sketch21, [(1.5, 49.1), (1.5, 50.7), (68.9, 50.7), (68.9, 49.1)])  # lines 0-3
sketch21.addConstraint([
    Sketcher.Constraint("Vertical", 0),
    Sketcher.Constraint("Horizontal", 1),
    Sketcher.Constraint("Vertical", 2),
    Sketcher.Constraint("Horizontal", 3),
    Sketcher.Constraint("DistanceX", 1, 1, 1, 2, 67.4),
    Sketcher.Constraint("DistanceY", 0, 1, 0, 2, 1.6),
    Sketcher.Constraint("DistanceX", -1, 1, 0, 2, 1.5),
    Sketcher.Constraint("DistanceY", -1, 1, 0, 2, 50.7),
])
pad9 = doc.addObject("PartDesign::Pad", "Pad008")
body.addObject(pad9)
pad9.Profile = sketch21
pad9.Length = 3.7
pad9.Reversed = True

# Sketch on YZ plane
sketch22 = doc.addObject("Sketcher::SketchObject", "Sketch021")
body.addObject(sketch22)
sketch22.AttachmentSupport = (doc.YZ_Plane, [""])
sketch22.MapMode = "FlatFace"
sketch22.AttachmentOffset = App.Placement(App.Vector(0, 0, 1.5), App.Rotation())
sketch22.addGeometry(Part.Circle(App.Vector(4.5, 49.1, 0), App.Vector(0, 0, 1), 2.6), False)
sketch22.addConstraint([
    Sketcher.Constraint("Diameter", 0, 5.3),
    Sketcher.Constraint("DistanceX", -1, 1, 0, 3, 4.5),
    Sketcher.Constraint("DistanceY", -1, 1, 0, 3, 49.1),
])
pad10 = doc.addObject("PartDesign::Pad", "Pad009")
body.addObject(pad10)
pad10.Profile = sketch22
pad10.Length = 67.7

# Sketch on XY plane
sketch23 = doc.addObject("Sketcher::SketchObject", "Sketch022")
body.addObject(sketch23)
sketch23.AttachmentSupport = (doc.XY_Plane, [""])
sketch23.MapMode = "FlatFace"
sketch23.AttachmentOffset = App.Placement(App.Vector(0, 0, 50.7), App.Rotation())
add_polygon(sketch23, [(70.5, -0.8), (70.5, 8.2), (68.9, 8.2), (68.9, 4.5), (1.5, 4.5), (1.5, 8.2), (-0.1, 8.2), (-0.1, -0.8)])  # lines 0-7
sketch23.addConstraint([
    Sketcher.Constraint("Vertical", 0),
    Sketcher.Constraint("Horizontal", 1),
    Sketcher.Constraint("Vertical", 2),
    Sketcher.Constraint("Horizontal", 3),
    Sketcher.Constraint("Vertical", 4),
    Sketcher.Constraint("Horizontal", 5),
    Sketcher.Constraint("Vertical", 6),
    Sketcher.Constraint("Horizontal", 7),
    Sketcher.Constraint("Horizontal", 1, 2, 4, 2),
    Sketcher.Constraint("Equal", 1, 5),
    Sketcher.Constraint("DistanceY", 0, 1, 0, 2, 9.0),
    Sketcher.Constraint("DistanceX", 1, 2, 1, 1, 1.6),
    Sketcher.Constraint("DistanceX", 3, 2, 3, 1, 67.4),
    Sketcher.Constraint("DistanceY", 2, 2, 2, 1, 3.7),
    Sketcher.Constraint("DistanceX", -1, 1, 0, 2, 70.5),
    Sketcher.Constraint("DistanceY", -1, 1, 0, 2, 8.2),
])
pad11 = doc.addObject("PartDesign::Pad", "Pad010")
body.addObject(pad11)
pad11.Profile = sketch23
pad11.Length = 1.05

doc.recompute()
